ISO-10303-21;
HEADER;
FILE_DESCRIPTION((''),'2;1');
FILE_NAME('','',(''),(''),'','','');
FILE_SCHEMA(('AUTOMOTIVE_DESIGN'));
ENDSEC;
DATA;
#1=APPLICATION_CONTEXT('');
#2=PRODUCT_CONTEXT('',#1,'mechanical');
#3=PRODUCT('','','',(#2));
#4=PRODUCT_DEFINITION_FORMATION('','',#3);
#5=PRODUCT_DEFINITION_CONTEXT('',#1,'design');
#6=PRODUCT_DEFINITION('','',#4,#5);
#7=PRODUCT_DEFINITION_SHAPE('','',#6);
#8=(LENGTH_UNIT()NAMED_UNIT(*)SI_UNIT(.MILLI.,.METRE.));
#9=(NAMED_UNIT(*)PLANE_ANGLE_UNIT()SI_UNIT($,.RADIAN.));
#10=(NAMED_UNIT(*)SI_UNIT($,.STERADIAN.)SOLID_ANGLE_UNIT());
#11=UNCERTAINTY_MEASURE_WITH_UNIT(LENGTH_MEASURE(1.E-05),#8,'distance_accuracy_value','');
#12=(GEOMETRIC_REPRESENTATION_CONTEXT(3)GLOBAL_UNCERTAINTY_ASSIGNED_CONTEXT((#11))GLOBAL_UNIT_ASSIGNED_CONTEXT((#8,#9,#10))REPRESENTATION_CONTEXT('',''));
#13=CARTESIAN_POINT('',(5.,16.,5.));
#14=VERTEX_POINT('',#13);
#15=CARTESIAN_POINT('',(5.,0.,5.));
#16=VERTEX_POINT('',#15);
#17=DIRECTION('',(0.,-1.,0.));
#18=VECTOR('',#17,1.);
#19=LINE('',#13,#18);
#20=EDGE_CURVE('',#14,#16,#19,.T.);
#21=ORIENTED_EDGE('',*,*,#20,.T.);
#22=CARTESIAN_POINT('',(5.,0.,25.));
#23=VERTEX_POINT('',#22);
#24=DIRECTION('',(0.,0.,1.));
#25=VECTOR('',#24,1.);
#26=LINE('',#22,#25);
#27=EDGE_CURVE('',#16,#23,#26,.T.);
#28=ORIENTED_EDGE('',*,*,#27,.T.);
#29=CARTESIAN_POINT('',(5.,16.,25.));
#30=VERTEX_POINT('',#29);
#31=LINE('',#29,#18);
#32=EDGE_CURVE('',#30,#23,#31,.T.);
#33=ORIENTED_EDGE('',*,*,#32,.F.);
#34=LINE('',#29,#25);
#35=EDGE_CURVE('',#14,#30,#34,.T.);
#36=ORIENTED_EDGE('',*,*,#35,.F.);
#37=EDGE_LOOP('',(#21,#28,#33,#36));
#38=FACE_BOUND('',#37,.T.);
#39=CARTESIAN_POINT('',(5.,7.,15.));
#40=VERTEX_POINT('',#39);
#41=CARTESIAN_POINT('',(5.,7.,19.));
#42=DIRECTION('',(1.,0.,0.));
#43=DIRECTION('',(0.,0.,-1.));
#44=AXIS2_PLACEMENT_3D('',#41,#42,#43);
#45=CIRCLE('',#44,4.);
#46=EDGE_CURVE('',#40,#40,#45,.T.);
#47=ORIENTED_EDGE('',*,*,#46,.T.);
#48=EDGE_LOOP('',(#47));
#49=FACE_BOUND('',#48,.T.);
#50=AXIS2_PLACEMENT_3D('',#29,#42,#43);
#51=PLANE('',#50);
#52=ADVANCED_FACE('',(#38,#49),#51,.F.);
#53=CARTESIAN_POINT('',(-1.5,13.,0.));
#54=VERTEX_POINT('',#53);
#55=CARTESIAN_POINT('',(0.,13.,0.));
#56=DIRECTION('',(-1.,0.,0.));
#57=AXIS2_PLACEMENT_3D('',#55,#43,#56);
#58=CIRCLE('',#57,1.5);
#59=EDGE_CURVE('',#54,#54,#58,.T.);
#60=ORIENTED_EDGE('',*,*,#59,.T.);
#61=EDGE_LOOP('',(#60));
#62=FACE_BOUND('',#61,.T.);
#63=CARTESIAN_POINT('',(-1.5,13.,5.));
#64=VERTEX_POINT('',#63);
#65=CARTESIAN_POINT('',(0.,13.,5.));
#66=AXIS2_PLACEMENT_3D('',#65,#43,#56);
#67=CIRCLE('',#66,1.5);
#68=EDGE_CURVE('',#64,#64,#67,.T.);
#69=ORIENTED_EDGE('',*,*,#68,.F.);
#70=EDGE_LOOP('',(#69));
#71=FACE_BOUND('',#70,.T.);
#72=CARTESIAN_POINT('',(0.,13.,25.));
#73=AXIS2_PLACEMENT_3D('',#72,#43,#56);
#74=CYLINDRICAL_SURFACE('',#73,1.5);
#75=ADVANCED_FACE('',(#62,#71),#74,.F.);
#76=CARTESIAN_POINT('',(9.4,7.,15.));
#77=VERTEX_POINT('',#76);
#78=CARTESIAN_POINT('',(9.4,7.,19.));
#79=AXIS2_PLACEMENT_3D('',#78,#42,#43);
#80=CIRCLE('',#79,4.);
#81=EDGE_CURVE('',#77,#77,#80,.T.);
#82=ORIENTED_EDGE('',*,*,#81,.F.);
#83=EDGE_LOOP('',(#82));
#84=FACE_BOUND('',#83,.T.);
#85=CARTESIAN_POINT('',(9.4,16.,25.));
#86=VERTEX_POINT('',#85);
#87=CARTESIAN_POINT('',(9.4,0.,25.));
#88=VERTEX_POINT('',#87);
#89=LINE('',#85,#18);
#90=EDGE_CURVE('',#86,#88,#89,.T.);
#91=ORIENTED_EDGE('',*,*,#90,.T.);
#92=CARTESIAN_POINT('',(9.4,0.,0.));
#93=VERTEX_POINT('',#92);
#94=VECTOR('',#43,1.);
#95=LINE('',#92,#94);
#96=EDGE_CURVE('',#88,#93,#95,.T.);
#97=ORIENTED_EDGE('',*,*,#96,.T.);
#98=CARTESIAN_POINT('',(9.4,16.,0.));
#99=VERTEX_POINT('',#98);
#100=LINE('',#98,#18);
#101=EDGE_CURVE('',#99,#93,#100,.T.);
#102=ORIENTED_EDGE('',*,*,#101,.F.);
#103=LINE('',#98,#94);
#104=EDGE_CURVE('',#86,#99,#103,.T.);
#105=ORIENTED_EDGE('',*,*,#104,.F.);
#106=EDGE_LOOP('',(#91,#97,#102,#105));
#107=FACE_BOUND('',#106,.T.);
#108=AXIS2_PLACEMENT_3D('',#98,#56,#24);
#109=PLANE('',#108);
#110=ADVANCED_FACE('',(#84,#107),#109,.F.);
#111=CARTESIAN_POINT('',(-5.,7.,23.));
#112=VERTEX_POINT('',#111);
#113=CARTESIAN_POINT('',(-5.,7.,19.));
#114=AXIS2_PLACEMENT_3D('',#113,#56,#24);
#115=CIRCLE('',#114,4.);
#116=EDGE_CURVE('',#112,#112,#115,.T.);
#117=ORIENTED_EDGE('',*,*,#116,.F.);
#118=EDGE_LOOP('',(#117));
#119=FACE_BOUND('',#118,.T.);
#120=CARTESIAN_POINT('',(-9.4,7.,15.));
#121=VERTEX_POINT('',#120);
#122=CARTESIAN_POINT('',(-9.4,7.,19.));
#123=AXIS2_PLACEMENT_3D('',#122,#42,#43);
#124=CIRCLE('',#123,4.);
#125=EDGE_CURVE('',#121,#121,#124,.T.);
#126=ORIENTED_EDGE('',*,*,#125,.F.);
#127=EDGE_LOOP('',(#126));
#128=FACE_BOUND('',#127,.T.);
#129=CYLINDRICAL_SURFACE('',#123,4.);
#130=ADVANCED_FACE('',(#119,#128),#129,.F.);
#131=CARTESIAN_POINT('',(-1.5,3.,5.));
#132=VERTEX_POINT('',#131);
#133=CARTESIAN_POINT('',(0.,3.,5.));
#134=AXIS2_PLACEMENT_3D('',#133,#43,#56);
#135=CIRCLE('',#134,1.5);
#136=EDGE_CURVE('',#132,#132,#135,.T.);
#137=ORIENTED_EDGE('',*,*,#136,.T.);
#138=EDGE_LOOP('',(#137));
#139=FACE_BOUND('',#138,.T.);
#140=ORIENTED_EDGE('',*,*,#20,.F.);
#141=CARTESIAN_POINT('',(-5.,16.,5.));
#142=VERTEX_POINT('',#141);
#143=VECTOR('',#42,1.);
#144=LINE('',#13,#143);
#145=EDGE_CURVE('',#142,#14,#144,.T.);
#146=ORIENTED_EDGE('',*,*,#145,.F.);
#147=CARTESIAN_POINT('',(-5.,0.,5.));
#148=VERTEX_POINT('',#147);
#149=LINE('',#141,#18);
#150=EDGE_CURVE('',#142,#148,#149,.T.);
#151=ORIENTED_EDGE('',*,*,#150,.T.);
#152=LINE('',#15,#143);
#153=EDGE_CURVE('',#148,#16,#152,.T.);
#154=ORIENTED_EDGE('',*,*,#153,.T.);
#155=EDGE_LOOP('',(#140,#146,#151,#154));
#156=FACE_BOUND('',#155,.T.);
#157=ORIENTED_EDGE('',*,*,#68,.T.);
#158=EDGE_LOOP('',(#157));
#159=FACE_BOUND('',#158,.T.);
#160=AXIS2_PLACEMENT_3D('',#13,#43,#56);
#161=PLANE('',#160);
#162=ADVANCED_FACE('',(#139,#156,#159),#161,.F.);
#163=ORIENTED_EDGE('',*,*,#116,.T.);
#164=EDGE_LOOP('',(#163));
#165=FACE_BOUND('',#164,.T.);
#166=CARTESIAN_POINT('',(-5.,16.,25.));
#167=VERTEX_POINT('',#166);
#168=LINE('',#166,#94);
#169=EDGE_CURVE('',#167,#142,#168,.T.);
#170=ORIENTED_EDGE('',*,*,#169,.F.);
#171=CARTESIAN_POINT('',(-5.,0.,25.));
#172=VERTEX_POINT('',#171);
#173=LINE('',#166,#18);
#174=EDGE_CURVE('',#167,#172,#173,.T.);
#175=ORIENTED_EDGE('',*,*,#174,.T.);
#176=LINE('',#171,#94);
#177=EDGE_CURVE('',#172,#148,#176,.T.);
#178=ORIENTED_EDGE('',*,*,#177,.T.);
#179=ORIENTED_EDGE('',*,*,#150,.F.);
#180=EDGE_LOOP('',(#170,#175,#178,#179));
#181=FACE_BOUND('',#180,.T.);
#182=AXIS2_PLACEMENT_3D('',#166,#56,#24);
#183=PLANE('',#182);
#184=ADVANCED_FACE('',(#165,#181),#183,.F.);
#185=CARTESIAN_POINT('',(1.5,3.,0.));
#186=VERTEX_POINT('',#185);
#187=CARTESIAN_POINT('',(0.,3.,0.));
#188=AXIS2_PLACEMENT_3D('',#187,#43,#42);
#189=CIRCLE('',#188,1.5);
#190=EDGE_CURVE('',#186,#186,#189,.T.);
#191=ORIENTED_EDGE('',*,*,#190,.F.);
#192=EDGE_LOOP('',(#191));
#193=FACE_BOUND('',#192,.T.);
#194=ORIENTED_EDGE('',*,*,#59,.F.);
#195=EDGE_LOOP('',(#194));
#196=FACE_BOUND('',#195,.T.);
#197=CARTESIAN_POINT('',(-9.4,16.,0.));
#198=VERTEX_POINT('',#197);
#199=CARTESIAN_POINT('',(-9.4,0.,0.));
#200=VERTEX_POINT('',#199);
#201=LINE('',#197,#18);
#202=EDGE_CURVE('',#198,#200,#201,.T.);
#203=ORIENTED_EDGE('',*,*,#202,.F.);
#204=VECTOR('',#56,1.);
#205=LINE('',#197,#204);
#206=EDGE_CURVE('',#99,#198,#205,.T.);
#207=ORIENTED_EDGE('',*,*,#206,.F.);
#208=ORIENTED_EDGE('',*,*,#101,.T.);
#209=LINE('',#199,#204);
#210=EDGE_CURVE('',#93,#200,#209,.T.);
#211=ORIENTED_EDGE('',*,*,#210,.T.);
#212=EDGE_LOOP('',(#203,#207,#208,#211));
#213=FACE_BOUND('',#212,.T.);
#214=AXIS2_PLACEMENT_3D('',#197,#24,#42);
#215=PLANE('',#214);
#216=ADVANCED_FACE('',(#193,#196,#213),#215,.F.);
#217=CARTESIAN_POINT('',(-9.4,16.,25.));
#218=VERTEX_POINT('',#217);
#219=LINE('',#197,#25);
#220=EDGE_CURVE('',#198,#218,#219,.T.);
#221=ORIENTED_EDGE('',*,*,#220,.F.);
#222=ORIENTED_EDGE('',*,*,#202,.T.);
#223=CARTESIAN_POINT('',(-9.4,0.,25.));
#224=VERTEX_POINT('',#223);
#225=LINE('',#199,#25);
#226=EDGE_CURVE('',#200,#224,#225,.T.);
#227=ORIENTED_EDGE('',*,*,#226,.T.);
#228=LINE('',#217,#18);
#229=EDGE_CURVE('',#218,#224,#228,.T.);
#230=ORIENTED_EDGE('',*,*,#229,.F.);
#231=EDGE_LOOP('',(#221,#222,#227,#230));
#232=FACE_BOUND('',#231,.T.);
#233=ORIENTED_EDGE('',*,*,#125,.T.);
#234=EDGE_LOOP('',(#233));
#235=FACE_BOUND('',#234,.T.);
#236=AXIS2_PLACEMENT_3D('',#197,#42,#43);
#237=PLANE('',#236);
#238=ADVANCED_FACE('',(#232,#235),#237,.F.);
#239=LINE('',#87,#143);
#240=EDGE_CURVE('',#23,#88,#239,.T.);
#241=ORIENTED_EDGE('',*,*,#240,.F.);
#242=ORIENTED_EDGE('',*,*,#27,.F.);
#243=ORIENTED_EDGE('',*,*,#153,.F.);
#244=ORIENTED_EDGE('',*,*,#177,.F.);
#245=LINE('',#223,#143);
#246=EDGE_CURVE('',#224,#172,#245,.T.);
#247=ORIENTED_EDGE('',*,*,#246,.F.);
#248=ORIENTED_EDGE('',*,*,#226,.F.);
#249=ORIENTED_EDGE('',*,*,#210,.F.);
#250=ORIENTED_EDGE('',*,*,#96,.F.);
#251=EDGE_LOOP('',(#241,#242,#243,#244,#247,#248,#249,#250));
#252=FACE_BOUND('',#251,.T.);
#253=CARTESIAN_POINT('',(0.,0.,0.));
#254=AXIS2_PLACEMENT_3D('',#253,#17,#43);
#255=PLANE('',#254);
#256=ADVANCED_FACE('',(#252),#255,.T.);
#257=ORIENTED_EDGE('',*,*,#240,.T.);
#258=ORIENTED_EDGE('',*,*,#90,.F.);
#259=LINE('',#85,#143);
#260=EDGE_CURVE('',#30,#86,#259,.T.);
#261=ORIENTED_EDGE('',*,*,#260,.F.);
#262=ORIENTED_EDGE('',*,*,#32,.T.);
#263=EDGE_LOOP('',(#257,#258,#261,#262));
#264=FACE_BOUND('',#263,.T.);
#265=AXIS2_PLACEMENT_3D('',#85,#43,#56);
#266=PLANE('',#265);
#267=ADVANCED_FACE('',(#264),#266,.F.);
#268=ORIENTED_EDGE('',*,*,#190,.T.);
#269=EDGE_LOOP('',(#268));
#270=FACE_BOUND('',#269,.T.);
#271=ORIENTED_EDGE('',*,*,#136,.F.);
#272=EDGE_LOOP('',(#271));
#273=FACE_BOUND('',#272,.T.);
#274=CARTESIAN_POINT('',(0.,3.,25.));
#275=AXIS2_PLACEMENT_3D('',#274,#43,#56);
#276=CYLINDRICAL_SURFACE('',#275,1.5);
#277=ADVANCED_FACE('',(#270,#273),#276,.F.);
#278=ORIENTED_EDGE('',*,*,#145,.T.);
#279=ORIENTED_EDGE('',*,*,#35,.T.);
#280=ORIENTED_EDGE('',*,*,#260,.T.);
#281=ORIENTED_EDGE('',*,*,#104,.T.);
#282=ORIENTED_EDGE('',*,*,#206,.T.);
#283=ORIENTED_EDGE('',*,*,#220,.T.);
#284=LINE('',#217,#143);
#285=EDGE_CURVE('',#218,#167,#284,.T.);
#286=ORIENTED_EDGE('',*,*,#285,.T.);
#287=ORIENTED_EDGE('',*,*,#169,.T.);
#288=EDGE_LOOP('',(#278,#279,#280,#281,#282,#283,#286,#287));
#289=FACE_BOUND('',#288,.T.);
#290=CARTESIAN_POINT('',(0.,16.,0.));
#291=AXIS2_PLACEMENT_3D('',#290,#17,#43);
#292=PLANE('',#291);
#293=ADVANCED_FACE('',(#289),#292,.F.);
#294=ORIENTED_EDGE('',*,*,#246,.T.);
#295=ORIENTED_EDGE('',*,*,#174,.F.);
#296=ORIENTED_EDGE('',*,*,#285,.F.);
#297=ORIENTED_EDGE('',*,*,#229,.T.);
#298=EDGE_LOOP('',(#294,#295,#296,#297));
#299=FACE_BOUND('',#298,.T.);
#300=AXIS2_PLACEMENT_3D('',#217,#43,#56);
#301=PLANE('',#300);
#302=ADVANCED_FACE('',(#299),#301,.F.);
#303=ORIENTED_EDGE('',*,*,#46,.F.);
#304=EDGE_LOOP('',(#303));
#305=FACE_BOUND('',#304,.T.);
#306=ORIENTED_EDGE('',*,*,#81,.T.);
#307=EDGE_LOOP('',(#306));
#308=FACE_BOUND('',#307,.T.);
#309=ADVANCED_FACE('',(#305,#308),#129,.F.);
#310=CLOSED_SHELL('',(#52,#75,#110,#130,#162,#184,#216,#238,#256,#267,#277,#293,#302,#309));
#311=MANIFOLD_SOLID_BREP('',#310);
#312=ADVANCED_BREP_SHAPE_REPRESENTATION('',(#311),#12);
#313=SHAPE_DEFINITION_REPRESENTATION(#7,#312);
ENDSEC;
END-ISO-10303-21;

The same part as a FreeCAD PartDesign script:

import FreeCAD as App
import Part
import Sketcher

doc = App.newDocument("Part")
body = doc.addObject("PartDesign::Body", "Body")

sketch1 = doc.addObject("Sketcher::SketchObject", "Sketch")
body.addObject(sketch1)
sketch1.AttachmentSupport = (doc.XZ_Plane, [""])
sketch1.MapMode = "FlatFace"
sketch1.addGeometry([
    Part.LineSegment(App.Vector(9.4, 0, 0), App.Vector(-9.4, 0, 0)),
    Part.LineSegment(App.Vector(-9.4, 0, 0), App.Vector(-9.4, 25, 0)),
    Part.LineSegment(App.Vector(-9.4, 25, 0), App.Vector(-5, 25, 0)),
    Part.LineSegment(App.Vector(-5, 25, 0), App.Vector(-5, 5, 0)),
    Part.LineSegment(App.Vector(-5, 5, 0), App.Vector(5, 5, 0)),
    Part.LineSegment(App.Vector(5, 5, 0), App.Vector(5, 25, 0)),
    Part.LineSegment(App.Vector(5, 25, 0), App.Vector(9.4, 25, 0)),
    Part.LineSegment(App.Vector(9.4, 25, 0), App.Vector(9.4, 0, 0)),
], False)
sketch1.addConstraint([
    Sketcher.Constraint("Coincident", 0, 2, 1, 1),
    Sketcher.Constraint("Coincident", 1, 2, 2, 1),
    Sketcher.Constraint("Coincident", 2, 2, 3, 1),
    Sketcher.Constraint("Coincident", 3, 2, 4, 1),
    Sketcher.Constraint("Coincident", 4, 2, 5, 1),
    Sketcher.Constraint("Coincident", 5, 2, 6, 1),
    Sketcher.Constraint("Coincident", 6, 2, 7, 1),
    Sketcher.Constraint("Coincident", 7, 2, 0, 1),
    Sketcher.Constraint("Horizontal", 0),
    Sketcher.Constraint("Vertical", 1),
    Sketcher.Constraint("Horizontal", 2),
    Sketcher.Constraint("Vertical", 3),
    Sketcher.Constraint("Horizontal", 4),
    Sketcher.Constraint("Vertical", 5),
    Sketcher.Constraint("Horizontal", 6),
    Sketcher.Constraint("Vertical", 7),
    Sketcher.Constraint("Symmetric", 0, 2, 7, 2, -1, 1),
    Sketcher.Constraint("Symmetric", 2, 2, 5, 2, -2),
    Sketcher.Constraint("DistanceX", 4, 1, 4, 2, 10.0),
    Sketcher.Constraint("DistanceY", 1, 1, 1, 2, 25.0),
    Sketcher.Constraint("DistanceY", 3, 2, 3, 1, 20.0),
    Sketcher.Constraint("DistanceX", 0, 2, 0, 1, 18.8),
])
pad1 = doc.addObject("PartDesign::Pad", "Pad")
body.addObject(pad1)
pad1.Profile = sketch1
pad1.Length = 16
pad1.Reversed = True

sketch2 = doc.addObject("Sketcher::SketchObject", "Sketch001")
body.addObject(sketch2)
sketch2.AttachmentSupport = (doc.YZ_Plane, [""])
sketch2.MapMode = "FlatFace"
sketch2.AttachmentOffset = App.Placement(App.Vector(0, 0, 9.4), App.Rotation())
sketch2.addGeometry(Part.Circle(App.Vector(7, 19, 0), App.Vector(0, 0, 1), 4), False)
sketch2.addConstraint([
    Sketcher.Constraint("Diameter", 0, 8.0),
    Sketcher.Constraint("DistanceX", -1, 1, 0, 3, 7.0),
    Sketcher.Constraint("DistanceY", -1, 1, 0, 3, 19.0),
])
pocket1 = doc.addObject("PartDesign::Pocket", "Pocket")
body.addObject(pocket1)
pocket1.Profile = sketch2
pocket1.Type = "ThroughAll"

sketch3 = doc.addObject("Sketcher::SketchObject", "Sketch002")
body.addObject(sketch3)
sketch3.AttachmentSupport = (doc.XY_Plane, [""])
sketch3.MapMode = "FlatFace"
sketch3.addGeometry([
    Part.Circle(App.Vector(0, 13, 0), App.Vector(0, 0, 1), 1.5),
    Part.Circle(App.Vector(0, 3, 0), App.Vector(0, 0, 1), 1.5),
], False)
sketch3.addConstraint([
    Sketcher.Constraint("Equal", 0, 1),
    Sketcher.Constraint("PointOnObject", 0, 3, -2),
    Sketcher.Constraint("PointOnObject", 1, 3, -2),
    Sketcher.Constraint("Diameter", 0, 3.0),
    Sketcher.Constraint("DistanceY", -1, 1, 0, 3, 13.0),
    Sketcher.Constraint("DistanceY", -1, 1, 1, 3, 3.0),
])
pocket2 = doc.addObject("PartDesign::Pocket", "Pocket001")
body.addObject(pocket2)
pocket2.Profile = sketch3
pocket2.Type = "ThroughAll"
pocket2.Reversed = True

doc.recompute()
